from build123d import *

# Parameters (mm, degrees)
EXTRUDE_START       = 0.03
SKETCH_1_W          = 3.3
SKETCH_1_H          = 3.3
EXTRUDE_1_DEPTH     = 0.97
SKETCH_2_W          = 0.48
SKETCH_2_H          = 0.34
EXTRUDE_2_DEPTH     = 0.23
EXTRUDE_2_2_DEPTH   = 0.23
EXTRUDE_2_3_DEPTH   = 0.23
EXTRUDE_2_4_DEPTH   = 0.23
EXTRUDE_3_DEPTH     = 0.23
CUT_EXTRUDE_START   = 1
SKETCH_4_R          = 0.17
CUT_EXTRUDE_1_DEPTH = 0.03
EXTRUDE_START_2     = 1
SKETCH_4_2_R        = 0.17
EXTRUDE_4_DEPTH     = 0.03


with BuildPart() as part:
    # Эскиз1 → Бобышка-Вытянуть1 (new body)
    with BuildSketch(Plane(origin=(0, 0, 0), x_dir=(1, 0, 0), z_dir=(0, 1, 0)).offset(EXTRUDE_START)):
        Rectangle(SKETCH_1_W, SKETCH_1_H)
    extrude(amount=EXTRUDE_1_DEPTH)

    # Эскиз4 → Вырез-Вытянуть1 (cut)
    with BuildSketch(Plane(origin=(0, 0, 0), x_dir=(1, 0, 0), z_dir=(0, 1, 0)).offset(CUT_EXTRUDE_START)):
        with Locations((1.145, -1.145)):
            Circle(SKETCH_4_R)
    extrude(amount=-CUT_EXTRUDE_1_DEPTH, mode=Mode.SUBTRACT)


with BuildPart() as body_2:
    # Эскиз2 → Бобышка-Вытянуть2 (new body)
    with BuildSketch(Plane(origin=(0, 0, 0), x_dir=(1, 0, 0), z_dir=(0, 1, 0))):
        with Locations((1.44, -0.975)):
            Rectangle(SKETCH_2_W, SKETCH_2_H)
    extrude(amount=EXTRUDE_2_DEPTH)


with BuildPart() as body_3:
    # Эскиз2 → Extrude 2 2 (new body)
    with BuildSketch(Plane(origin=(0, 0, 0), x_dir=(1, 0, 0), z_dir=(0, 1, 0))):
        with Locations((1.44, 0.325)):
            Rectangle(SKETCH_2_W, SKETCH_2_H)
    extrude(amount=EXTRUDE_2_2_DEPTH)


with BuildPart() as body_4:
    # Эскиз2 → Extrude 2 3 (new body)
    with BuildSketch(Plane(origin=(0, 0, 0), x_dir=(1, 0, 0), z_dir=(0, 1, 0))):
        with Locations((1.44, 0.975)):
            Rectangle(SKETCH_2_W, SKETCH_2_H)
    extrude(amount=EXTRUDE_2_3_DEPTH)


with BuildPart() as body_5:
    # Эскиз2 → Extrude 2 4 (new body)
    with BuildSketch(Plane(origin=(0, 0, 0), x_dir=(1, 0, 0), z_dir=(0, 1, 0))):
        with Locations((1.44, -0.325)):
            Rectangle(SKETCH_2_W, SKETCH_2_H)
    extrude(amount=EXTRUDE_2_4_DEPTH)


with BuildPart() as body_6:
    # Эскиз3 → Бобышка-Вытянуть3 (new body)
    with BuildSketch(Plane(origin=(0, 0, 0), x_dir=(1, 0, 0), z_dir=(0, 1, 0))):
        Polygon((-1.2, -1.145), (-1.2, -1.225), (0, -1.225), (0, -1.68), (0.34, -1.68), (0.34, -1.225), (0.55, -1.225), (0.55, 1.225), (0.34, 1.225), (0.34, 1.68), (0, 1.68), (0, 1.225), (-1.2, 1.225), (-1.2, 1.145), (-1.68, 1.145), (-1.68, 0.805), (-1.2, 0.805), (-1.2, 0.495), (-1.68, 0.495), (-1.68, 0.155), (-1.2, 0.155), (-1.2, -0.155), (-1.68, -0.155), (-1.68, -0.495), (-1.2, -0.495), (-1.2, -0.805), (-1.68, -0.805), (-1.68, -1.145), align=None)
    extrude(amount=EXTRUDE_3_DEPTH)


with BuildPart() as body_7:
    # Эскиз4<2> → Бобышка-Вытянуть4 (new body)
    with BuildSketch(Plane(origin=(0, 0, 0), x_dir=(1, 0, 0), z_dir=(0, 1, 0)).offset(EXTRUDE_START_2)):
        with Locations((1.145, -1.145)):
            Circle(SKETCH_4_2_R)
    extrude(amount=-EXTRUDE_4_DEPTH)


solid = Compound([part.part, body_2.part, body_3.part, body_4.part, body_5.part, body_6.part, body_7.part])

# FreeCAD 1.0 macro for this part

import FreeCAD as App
import Part
import Sketcher
from FreeCAD import Vector

doc = App.newDocument("Part")
body = doc.addObject("PartDesign::Body", "Body")

# Sketch on XZ plane
sketch1 = body.newObject("Sketcher::SketchObject", "Sketch")
sketch1.AttachmentSupport = (doc.getObject("XZ_Plane"), [""])
sketch1.MapMode = "FlatFace"
sketch1.AttachmentOffset = App.Placement(Vector(0, 0, -0.03), App.Rotation())
sketch1.addGeometry([
    Part.LineSegment(Vector(-1.6, -1.6, 0), Vector(-1.6, 1.6, 0)),
    Part.LineSegment(Vector(-1.6, 1.6, 0), Vector(1.6, 1.6, 0)),
    Part.LineSegment(Vector(1.6, 1.6, 0), Vector(1.6, -1.6, 0)),
    Part.LineSegment(Vector(1.6, -1.6, 0), Vector(-1.6, -1.6, 0)),
], False)
sketch1.addConstraint([
    Sketcher.Constraint("Coincident", 0, 2, 1, 1),
    Sketcher.Constraint("Coincident", 1, 2, 2, 1),
    Sketcher.Constraint("Coincident", 2, 2, 3, 1),
    Sketcher.Constraint("Coincident", 3, 2, 0, 1),
    Sketcher.Constraint("Vertical", 0),
    Sketcher.Constraint("Horizontal", 1),
    Sketcher.Constraint("Vertical", 2),
    Sketcher.Constraint("Horizontal", 3),
    Sketcher.Constraint("Symmetric", 0, 2, 2, 2, -1, 1),
    Sketcher.Constraint("Equal", 3, 0),
    Sketcher.Constraint("DistanceX", 1, 1, 1, 2, 3.3),
])
pad1 = body.newObject("PartDesign::Pad", "Pad")
pad1.Profile = sketch1
pad1.Length = 0.97
pad1.Reversed = True

# Sketch on XZ plane
sketch2 = body.newObject("Sketcher::SketchObject", "Sketch001")
sketch2.AttachmentSupport = (doc.getObject("XZ_Plane"), [""])
sketch2.MapMode = "FlatFace"
sketch2.AttachmentOffset = App.Placement(Vector(0, 0, -1), App.Rotation())
sketch2.addGeometry(Part.Circle(Vector(1.15, 1.15, 0), Vector(0, 0, 1), 0.17), False)
sketch2.addConstraint([
    Sketcher.Constraint("Diameter", 0, 0.34),
    Sketcher.Constraint("DistanceX", -1, 1, 0, 3, 1.145),
    Sketcher.Constraint("DistanceY", -1, 1, 0, 3, 1.145),
])
pocket1 = body.newObject("PartDesign::Pocket", "Pocket")
pocket1.Profile = sketch2
pocket1.Length = 0.03
pocket1.Reversed = True
body2 = doc.addObject("PartDesign::Body", "Body001")

# Sketch on XZ plane
sketch3 = body2.newObject("Sketcher::SketchObject", "Sketch002")
sketch3.AttachmentSupport = (doc.getObject("XZ_Plane001"), [""])
sketch3.MapMode = "FlatFace"
sketch3.addGeometry([
    Part.LineSegment(Vector(1.2, 0.81, 0), Vector(1.2, 1.15, 0)),
    Part.LineSegment(Vector(1.2, 1.15, 0), Vector(1.68, 1.15, 0)),
    Part.LineSegment(Vector(1.68, 1.15, 0), Vector(1.68, 0.81, 0)),
    Part.LineSegment(Vector(1.68, 0.81, 0), Vector(1.2, 0.81, 0)),
], False)
sketch3.addConstraint([
    Sketcher.Constraint("Coincident", 0, 2, 1, 1),
    Sketcher.Constraint("Coincident", 1, 2, 2, 1),
    Sketcher.Constraint("Coincident", 2, 2, 3, 1),
    Sketcher.Constraint("Coincident", 3, 2, 0, 1),
    Sketcher.Constraint("Vertical", 0),
    Sketcher.Constraint("Horizontal", 1),
    Sketcher.Constraint("Vertical", 2),
    Sketcher.Constraint("Horizontal", 3),
    Sketcher.Constraint("DistanceX", 1, 1, 1, 2, 0.48),
    Sketcher.Constraint("DistanceY", 0, 1, 0, 2, 0.34),
    Sketcher.Constraint("DistanceX", -1, 1, 0, 2, 1.2),
    Sketcher.Constraint("DistanceY", -1, 1, 0, 2, 1.145),
])
pad2 = body2.newObject("PartDesign::Pad", "Pad001")
pad2.Profile = sketch3
pad2.Length = 0.23
pad2.Reversed = True
body3 = doc.addObject("PartDesign::Body", "Body002")

# Sketch on XZ plane
sketch4 = body3.newObject("Sketcher::SketchObject", "Sketch003")
sketch4.AttachmentSupport = (doc.getObject("XZ_Plane002"), [""])
sketch4.MapMode = "FlatFace"
sketch4.addGeometry([
    Part.LineSegment(Vector(1.2, -0.49, 0), Vector(1.2, -0.15, 0)),
    Part.LineSegment(Vector(1.2, -0.15, 0), Vector(1.68, -0.15, 0)),
    Part.LineSegment(Vector(1.68, -0.15, 0), Vector(1.68, -0.49, 0)),
    Part.LineSegment(Vector(1.68, -0.49, 0), Vector(1.2, -0.49, 0)),
], False)
sketch4.addConstraint([
    Sketcher.Constraint("Coincident", 0, 2, 1, 1),
    Sketcher.Constraint("Coincident", 1, 2, 2, 1),
    Sketcher.Constraint("Coincident", 2, 2, 3, 1),
    Sketcher.Constraint("Coincident", 3, 2, 0, 1),
    Sketcher.Constraint("Vertical", 0),
    Sketcher.Constraint("Horizontal", 1),
    Sketcher.Constraint("Vertical", 2),
    Sketcher.Constraint("Horizontal", 3),
    Sketcher.Constraint("DistanceX", 1, 1, 1, 2, 0.48),
    Sketcher.Constraint("DistanceY", 0, 1, 0, 2, 0.34),
    Sketcher.Constraint("DistanceX", -1, 1, 0, 2, 1.2),
    Sketcher.Constraint("DistanceY", 0, 2, -1, 1, 0.155),
])
pad3 = body3.newObject("PartDesign::Pad", "Pad002")
pad3.Profile = sketch4
pad3.Length = 0.23
pad3.Reversed = True
body4 = doc.addObject("PartDesign::Body", "Body003")

# Sketch on XZ plane
sketch5 = body4.newObject("Sketcher::SketchObject", "Sketch004")
sketch5.AttachmentSupport = (doc.getObject("XZ_Plane003"), [""])
sketch5.MapMode = "FlatFace"
sketch5.addGeometry([
    Part.LineSegment(Vector(1.2, -1.15, 0), Vector(1.2, -0.81, 0)),
    Part.LineSegment(Vector(1.2, -0.81, 0), Vector(1.68, -0.81, 0)),
    Part.LineSegment(Vector(1.68, -0.81, 0), Vector(1.68, -1.15, 0)),
    Part.LineSegment(Vector(1.68, -1.15, 0), Vector(1.2, -1.15, 0)),
], False)
sketch5.addConstraint([
    Sketcher.Constraint("Coincident", 0, 2, 1, 1),
    Sketcher.Constraint("Coincident", 1, 2, 2, 1),
    Sketcher.Constraint("Coincident", 2, 2, 3, 1),
    Sketcher.Constraint("Coincident", 3, 2, 0, 1),
    Sketcher.Constraint("Vertical", 0),
    Sketcher.Constraint("Horizontal", 1),
    Sketcher.Constraint("Vertical", 2),
    Sketcher.Constraint("Horizontal", 3),
    Sketcher.Constraint("DistanceX", 1, 1, 1, 2, 0.48),
    Sketcher.Constraint("DistanceY", 0, 1, 0, 2, 0.34),
    Sketcher.Constraint("DistanceX", -1, 1, 0, 2, 1.2),
    Sketcher.Constraint("DistanceY", 0, 2, -1, 1, 0.805),
])
pad4 = body4.newObject("PartDesign::Pad", "Pad003")
pad4.Profile = sketch5
pad4.Length = 0.23
pad4.Reversed = True
body5 = doc.addObject("PartDesign::Body", "Body004")

# Sketch on XZ plane
sketch6 = body5.newObject("Sketcher::SketchObject", "Sketch005")
sketch6.AttachmentSupport = (doc.getObject("XZ_Plane004"), [""])
sketch6.MapMode = "FlatFace"
sketch6.addGeometry([
    Part.LineSegment(Vector(1.2, 0.15, 0), Vector(1.2, 0.49, 0)),
    Part.LineSegment(Vector(1.2, 0.49, 0), Vector(1.68, 0.49, 0)),
    Part.LineSegment(Vector(1.68, 0.49, 0), Vector(1.68, 0.15, 0)),
    Part.LineSegment(Vector(1.68, 0.15, 0), Vector(1.2, 0.15, 0)),
], False)
sketch6.addConstraint([
    Sketcher.Constraint("Coincident", 0, 2, 1, 1),
    Sketcher.Constraint("Coincident", 1, 2, 2, 1),
    Sketcher.Constraint("Coincident", 2, 2, 3, 1),
    Sketcher.Constraint("Coincident", 3, 2, 0, 1),
    Sketcher.Constraint("Vertical", 0),
    Sketcher.Constraint("Horizontal", 1),
    Sketcher.Constraint("Vertical", 2),
    Sketcher.Constraint("Horizontal", 3),
    Sketcher.Constraint("DistanceX", 1, 1, 1, 2, 0.48),
    Sketcher.Constraint("DistanceY", 0, 1, 0, 2, 0.34),
    Sketcher.Constraint("DistanceX", -1, 1, 0, 2, 1.2),
    Sketcher.Constraint("DistanceY", -1, 1, 0, 2, 0.495),
])
pad5 = body5.newObject("PartDesign::Pad", "Pad004")
pad5.Profile = sketch6
pad5.Length = 0.23
pad5.Reversed = True
body6 = doc.addObject("PartDesign::Body", "Body005")

# Sketch on XZ plane
sketch7 = body6.newObject("Sketcher::SketchObject", "Sketch006")
sketch7.AttachmentSupport = (doc.getObject("XZ_Plane005"), [""])
sketch7.MapMode = "FlatFace"
sketch7.addGeometry([
    Part.LineSegment(Vector(-1.2, 1.15, 0), Vector(-1.2, 1.23, 0)),  # 0
    Part.LineSegment(Vector(-1.2, 1.23, 0), Vector(0, 1.23, 0)),  # 1
    Part.LineSegment(Vector(0, 1.23, 0), Vector(0, 1.68, 0)),  # 2
    Part.LineSegment(Vector(0, 1.68, 0), Vector(0.34, 1.68, 0)),  # 3
    Part.LineSegment(Vector(0.34, 1.68, 0), Vector(0.34, 1.23, 0)),  # 4
    Part.LineSegment(Vector(0.34, 1.23, 0), Vector(0.55, 1.23, 0)),  # 5
    Part.LineSegment(Vector(0.55, 1.23, 0), Vector(0.55, -1.23, 0)),  # 6
    Part.LineSegment(Vector(0.55, -1.23, 0), Vector(0.34, -1.23, 0)),  # 7
    Part.LineSegment(Vector(0.34, -1.23, 0), Vector(0.34, -1.68, 0)),  # 8
    Part.LineSegment(Vector(0.34, -1.68, 0), Vector(0, -1.68, 0)),  # 9
    Part.LineSegment(Vector(0, -1.68, 0), Vector(0, -1.23, 0)),  # 10
    Part.LineSegment(Vector(0, -1.23, 0), Vector(-1.2, -1.23, 0)),  # 11
    Part.LineSegment(Vector(-1.2, -1.23, 0), Vector(-1.2, -1.15, 0)),  # 12
    Part.LineSegment(Vector(-1.2, -1.15, 0), Vector(-1.68, -1.15, 0)),  # 13
    Part.LineSegment(Vector(-1.68, -1.15, 0), Vector(-1.68, -0.81, 0)),  # 14
    Part.LineSegment(Vector(-1.68, -0.81, 0), Vector(-1.2, -0.81, 0)),  # 15
    Part.LineSegment(Vector(-1.2, -0.81, 0), Vector(-1.2, -0.49, 0)),  # 16
    Part.LineSegment(Vector(-1.2, -0.49, 0), Vector(-1.68, -0.49, 0)),  # 17
    Part.LineSegment(Vector(-1.68, -0.49, 0), Vector(-1.68, -0.15, 0)),  # 18
    Part.LineSegment(Vector(-1.68, -0.15, 0), Vector(-1.2, -0.15, 0)),  # 19
    Part.LineSegment(Vector(-1.2, -0.15, 0), Vector(-1.2, 0.15, 0)),  # 20
    Part.LineSegment(Vector(-1.2, 0.15, 0), Vector(-1.68, 0.15, 0)),  # 21
    Part.LineSegment(Vector(-1.68, 0.15, 0), Vector(-1.68, 0.49, 0)),  # 22
    Part.LineSegment(Vector(-1.68, 0.49, 0), Vector(-1.2, 0.49, 0)),  # 23
    Part.LineSegment(Vector(-1.2, 0.49, 0), Vector(-1.2, 0.81, 0)),  # 24
    Part.LineSegment(Vector(-1.2, 0.81, 0), Vector(-1.68, 0.81, 0)),  # 25
    Part.LineSegment(Vector(-1.68, 0.81, 0), Vector(-1.68, 1.15, 0)),  # 26
    Part.LineSegment(Vector(-1.68, 1.15, 0), Vector(-1.2, 1.15, 0)),  # 27
], False)
sketch7.addConstraint([
    Sketcher.Constraint("Coincident", 0, 2, 1, 1),
    Sketcher.Constraint("Coincident", 1, 2, 2, 1),
    Sketcher.Constraint("Coincident", 2, 2, 3, 1),
    Sketcher.Constraint("Coincident", 3, 2, 4, 1),
    Sketcher.Constraint("Coincident", 4, 2, 5, 1),
    Sketcher.Constraint("Coincident", 5, 2, 6, 1),
    Sketcher.Constraint("Coincident", 6, 2, 7, 1),
    Sketcher.Constraint("Coincident", 7, 2, 8, 1),
    Sketcher.Constraint("Coincident", 8, 2, 9, 1),
    Sketcher.Constraint("Coincident", 9, 2, 10, 1),
    Sketcher.Constraint("Coincident", 10, 2, 11, 1),
    Sketcher.Constraint("Coincident", 11, 2, 12, 1),
    Sketcher.Constraint("Coincident", 12, 2, 13, 1),
    Sketcher.Constraint("Coincident", 13, 2, 14, 1),
    Sketcher.Constraint("Coincident", 14, 2, 15, 1),
    Sketcher.Constraint("Coincident", 15, 2, 16, 1),
    Sketcher.Constraint("Coincident", 16, 2, 17, 1),
    Sketcher.Constraint("Coincident", 17, 2, 18, 1),
    Sketcher.Constraint("Coincident", 18, 2, 19, 1),
    Sketcher.Constraint("Coincident", 19, 2, 20, 1),
    Sketcher.Constraint("Coincident", 20, 2, 21, 1),
    Sketcher.Constraint("Coincident", 21, 2, 22, 1),
    Sketcher.Constraint("Coincident", 22, 2, 23, 1),
    Sketcher.Constraint("Coincident", 23, 2, 24, 1),
    Sketcher.Constraint("Coincident", 24, 2, 25, 1),
    Sketcher.Constraint("Coincident", 25, 2, 26, 1),
    Sketcher.Constraint("Coincident", 26, 2, 27, 1),
    Sketcher.Constraint("Coincident", 27, 2, 0, 1),
    Sketcher.Constraint("Vertical", 0),
    Sketcher.Constraint("Horizontal", 1),
    Sketcher.Constraint("Vertical", 2),
    Sketcher.Constraint("Horizontal", 3),
    Sketcher.Constraint("Vertical", 4),
    Sketcher.Constraint("Horizontal", 5),
    Sketcher.Constraint("Vertical", 6),
    Sketcher.Constraint("Horizontal", 7),
    Sketcher.Constraint("Vertical", 8),
    Sketcher.Constraint("Horizontal", 9),
    Sketcher.Constraint("Vertical", 10),
    Sketcher.Constraint("Horizontal", 11),
    Sketcher.Constraint("Vertical", 12),
    Sketcher.Constraint("Horizontal", 13),
    Sketcher.Constraint("Vertical", 14),
    Sketcher.Constraint("Horizontal", 15),
    Sketcher.Constraint("Vertical", 16),
    Sketcher.Constraint("Horizontal", 17),
    Sketcher.Constraint("Vertical", 18),
    Sketcher.Constraint("Horizontal", 19),
    Sketcher.Constraint("Vertical", 20),
    Sketcher.Constraint("Horizontal", 21),
    Sketcher.Constraint("Vertical", 22),
    Sketcher.Constraint("Horizontal", 23),
    Sketcher.Constraint("Vertical", 24),
    Sketcher.Constraint("Horizontal", 25),
    Sketcher.Constraint("Vertical", 26),
    Sketcher.Constraint("Horizontal", 27),
    Sketcher.Constraint("Symmetric", 2, 2, 9, 2, -1, 1),
    Sketcher.Constraint("Symmetric", 4, 2, 7, 2, -1),
    Sketcher.Constraint("Symmetric", 1, 2, 10, 2, -1),
    Sketcher.Constraint("Symmetric", 18, 2, 21, 2, -1),
    Sketcher.Constraint("Symmetric", 16, 2, 23, 2, -1),
    Sketcher.Constraint("Symmetric", 14, 2, 25, 2, -1),
    Sketcher.Constraint("Symmetric", 12, 2, 27, 2, -1),
    Sketcher.Constraint("Horizontal", 1, 2, 4, 2),
    Sketcher.Constraint("Vertical", 12, 2, 15, 2),
    Sketcher.Constraint("Vertical", 14, 2, 17, 2),
    Sketcher.Constraint("Vertical", 16, 2, 19, 2),
    Sketcher.Constraint("Equal", 9, 14),
    Sketcher.Constraint("Equal", 14, 18),
    Sketcher.Constraint("Equal", 16, 20),
    Sketcher.Constraint("DistanceX", 1, 1, 1, 2, 1.2),
    Sketcher.Constraint("DistanceX", 3, 1, 3, 2, 0.34),
    Sketcher.Constraint("DistanceX", 5, 1, 5, 2, 0.21),
    Sketcher.Constraint("DistanceX", 13, 2, 13, 1, 0.48),
    Sketcher.Constraint("DistanceY", 0, 1, 0, 2, 0.08),
    Sketcher.Constraint("DistanceY", 6, 2, 6, 1, 2.45),
    Sketcher.Constraint("DistanceY", 2, 1, 2, 2, 0.455),
])
pad6 = body6.newObject("PartDesign::Pad", "Pad005")
pad6.Profile = sketch7
pad6.Length = 0.23
pad6.Reversed = True
body7 = doc.addObject("PartDesign::Body", "Body006")

# Sketch on XZ plane
sketch8 = body7.newObject("Sketcher::SketchObject", "Sketch007")
sketch8.AttachmentSupport = (doc.getObject("XZ_Plane006"), [""])
sketch8.MapMode = "FlatFace"
sketch8.AttachmentOffset = App.Placement(Vector(0, 0, -1), App.Rotation())
sketch8.addGeometry(Part.Circle(Vector(1.15, 1.15, 0), Vector(0, 0, 1), 0.17), False)
sketch8.addConstraint([
    Sketcher.Constraint("Diameter", 0, 0.34),
    Sketcher.Constraint("DistanceX", -1, 1, 0, 3, 1.145),
    Sketcher.Constraint("DistanceY", -1, 1, 0, 3, 1.145),
])
pad7 = body7.newObject("PartDesign::Pad", "Pad006")
pad7.Profile = sketch8
pad7.Length = 0.03

doc.recompute()
